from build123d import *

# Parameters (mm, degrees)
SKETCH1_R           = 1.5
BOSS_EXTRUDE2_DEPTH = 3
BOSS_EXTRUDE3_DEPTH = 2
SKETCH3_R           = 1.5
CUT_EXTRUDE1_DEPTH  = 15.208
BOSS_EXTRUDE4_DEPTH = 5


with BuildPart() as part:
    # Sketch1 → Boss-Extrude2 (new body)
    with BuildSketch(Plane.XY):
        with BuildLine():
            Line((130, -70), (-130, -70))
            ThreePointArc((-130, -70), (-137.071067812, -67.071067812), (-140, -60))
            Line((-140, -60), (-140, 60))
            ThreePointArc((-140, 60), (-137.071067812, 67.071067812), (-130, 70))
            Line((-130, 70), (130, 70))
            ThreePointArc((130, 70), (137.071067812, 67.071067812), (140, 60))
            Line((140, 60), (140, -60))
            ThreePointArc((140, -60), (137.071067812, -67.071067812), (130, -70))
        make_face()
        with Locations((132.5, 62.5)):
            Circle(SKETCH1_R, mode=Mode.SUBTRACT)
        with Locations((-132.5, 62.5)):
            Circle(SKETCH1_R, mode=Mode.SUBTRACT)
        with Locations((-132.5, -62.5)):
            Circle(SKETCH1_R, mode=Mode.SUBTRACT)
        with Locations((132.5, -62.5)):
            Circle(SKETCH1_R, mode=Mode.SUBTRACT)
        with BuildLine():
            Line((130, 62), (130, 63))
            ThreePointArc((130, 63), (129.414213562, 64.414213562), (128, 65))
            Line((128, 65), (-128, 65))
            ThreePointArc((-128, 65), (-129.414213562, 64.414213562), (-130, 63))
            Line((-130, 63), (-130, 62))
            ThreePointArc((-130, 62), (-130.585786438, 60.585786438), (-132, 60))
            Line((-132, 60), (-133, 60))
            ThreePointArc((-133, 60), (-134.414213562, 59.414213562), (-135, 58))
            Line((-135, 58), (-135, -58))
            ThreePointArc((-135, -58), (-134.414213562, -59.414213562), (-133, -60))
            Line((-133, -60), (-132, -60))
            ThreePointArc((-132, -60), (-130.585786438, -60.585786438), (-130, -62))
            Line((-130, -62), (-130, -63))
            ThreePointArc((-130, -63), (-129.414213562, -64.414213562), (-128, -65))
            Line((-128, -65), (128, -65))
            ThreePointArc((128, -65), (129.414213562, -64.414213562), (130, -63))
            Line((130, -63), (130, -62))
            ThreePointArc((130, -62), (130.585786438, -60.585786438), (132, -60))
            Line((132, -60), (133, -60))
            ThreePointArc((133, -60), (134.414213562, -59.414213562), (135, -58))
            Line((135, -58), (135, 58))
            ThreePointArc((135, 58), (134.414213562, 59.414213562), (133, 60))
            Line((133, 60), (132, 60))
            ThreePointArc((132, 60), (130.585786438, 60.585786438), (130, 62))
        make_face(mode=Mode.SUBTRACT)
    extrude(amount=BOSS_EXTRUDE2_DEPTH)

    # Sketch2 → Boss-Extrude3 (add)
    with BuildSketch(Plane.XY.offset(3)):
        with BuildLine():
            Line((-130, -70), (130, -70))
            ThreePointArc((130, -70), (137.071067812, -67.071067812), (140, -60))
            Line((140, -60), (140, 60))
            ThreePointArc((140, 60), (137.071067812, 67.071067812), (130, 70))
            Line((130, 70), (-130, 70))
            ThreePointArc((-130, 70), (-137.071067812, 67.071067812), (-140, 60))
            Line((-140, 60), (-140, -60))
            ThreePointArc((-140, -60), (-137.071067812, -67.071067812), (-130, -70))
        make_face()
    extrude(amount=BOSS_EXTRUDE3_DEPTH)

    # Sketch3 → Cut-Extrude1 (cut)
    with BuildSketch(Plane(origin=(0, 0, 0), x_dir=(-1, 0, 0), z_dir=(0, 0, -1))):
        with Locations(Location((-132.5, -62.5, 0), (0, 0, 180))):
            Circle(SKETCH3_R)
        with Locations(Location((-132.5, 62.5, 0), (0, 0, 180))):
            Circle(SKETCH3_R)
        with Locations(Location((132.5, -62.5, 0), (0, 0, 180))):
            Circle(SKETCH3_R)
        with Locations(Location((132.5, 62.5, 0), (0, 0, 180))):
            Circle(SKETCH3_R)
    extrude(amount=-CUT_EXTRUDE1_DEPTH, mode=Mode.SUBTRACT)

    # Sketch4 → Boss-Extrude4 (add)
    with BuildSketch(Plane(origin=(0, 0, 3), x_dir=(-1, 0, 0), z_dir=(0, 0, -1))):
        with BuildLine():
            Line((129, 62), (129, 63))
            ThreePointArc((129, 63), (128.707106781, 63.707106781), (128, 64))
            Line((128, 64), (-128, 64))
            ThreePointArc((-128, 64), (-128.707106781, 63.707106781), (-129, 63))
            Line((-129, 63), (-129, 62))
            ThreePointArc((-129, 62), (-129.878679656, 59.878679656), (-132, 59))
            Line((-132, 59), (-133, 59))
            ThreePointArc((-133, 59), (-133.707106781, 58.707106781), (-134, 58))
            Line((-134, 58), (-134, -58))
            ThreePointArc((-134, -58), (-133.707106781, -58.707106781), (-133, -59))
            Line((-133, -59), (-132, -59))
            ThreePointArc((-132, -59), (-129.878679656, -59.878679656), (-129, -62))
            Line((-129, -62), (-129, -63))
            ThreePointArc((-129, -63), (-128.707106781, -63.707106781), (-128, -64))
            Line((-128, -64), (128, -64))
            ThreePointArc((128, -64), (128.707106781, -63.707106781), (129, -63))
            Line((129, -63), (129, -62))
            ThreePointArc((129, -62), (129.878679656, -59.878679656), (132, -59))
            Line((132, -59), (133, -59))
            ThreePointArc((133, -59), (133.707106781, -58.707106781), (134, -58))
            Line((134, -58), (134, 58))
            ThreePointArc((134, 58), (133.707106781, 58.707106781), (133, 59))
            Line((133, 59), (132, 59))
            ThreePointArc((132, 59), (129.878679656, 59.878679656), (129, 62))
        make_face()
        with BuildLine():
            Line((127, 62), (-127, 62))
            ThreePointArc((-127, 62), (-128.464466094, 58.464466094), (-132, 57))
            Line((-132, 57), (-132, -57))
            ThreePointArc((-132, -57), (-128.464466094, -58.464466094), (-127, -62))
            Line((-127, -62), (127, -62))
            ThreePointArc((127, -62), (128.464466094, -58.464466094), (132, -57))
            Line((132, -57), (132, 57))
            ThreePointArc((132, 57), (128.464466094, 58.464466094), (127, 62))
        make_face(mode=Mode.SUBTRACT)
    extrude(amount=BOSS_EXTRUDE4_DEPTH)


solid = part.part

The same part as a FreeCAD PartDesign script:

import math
import FreeCAD as App
import Part
import Sketcher
from FreeCAD import Vector

doc = App.newDocument("Part")
body = doc.addObject("PartDesign::Body", "Body")

sketch1 = body.newObject("Sketcher::SketchObject", "Sketch")
sketch1.AttachmentSupport = (doc.getObject("XY_Plane"), [""])
sketch1.MapMode = "FlatFace"
sketch1.addGeometry([
    Part.LineSegment(Vector(-130, -70, 0), Vector(130, -70, 0)),
    Part.ArcOfCircle(Part.Circle(Vector(130, -60, 0), Vector(0, 0, 1), 10), math.radians(-90), math.radians(0)),
    Part.LineSegment(Vector(140, -60, 0), Vector(140, 60, 0)),
    Part.ArcOfCircle(Part.Circle(Vector(130, 60, 0), Vector(0, 0, 1), 10), math.radians(0), math.radians(90)),
    Part.LineSegment(Vector(130, 70, 0), Vector(-130, 70, 0)),
    Part.ArcOfCircle(Part.Circle(Vector(-130, 60, 0), Vector(0, 0, 1), 10), math.radians(90), math.radians(180)),
    Part.LineSegment(Vector(-140, 60, 0), Vector(-140, -60, 0)),
    Part.ArcOfCircle(Part.Circle(Vector(-130, -60, 0), Vector(0, 0, 1), 10), math.radians(180), math.radians(270)),
    Part.Circle(Vector(132.5, -62.5, 0), Vector(0, 0, 1), 1.5),
    Part.Circle(Vector(-132.5, -62.5, 0), Vector(0, 0, 1), 1.5),
    Part.Circle(Vector(132.5, 62.5, 0), Vector(0, 0, 1), 1.5),
    Part.ArcOfCircle(Part.Circle(Vector(132, 62, 0), Vector(0, 0, 1), 2), math.radians(-180), math.radians(-90)),
    Part.LineSegment(Vector(132, 60, 0), Vector(133, 60, 0)),
    Part.ArcOfCircle(Part.Circle(Vector(133, 58, 0), Vector(0, 0, 1), 2), math.radians(0), math.radians(90)),
    Part.LineSegment(Vector(135, 58, 0), Vector(135, -58, 0)),
    Part.ArcOfCircle(Part.Circle(Vector(133, -58, 0), Vector(0, 0, 1), 2), math.radians(-90), math.radians(0)),
    Part.LineSegment(Vector(133, -60, 0), Vector(132, -60, 0)),
    Part.ArcOfCircle(Part.Circle(Vector(132, -62, 0), Vector(0, 0, 1), 2), math.radians(90), math.radians(180)),
    Part.LineSegment(Vector(130, -62, 0), Vector(130, -63, 0)),
    Part.ArcOfCircle(Part.Circle(Vector(128, -63, 0), Vector(0, 0, 1), 2), math.radians(-90), math.radians(0)),
    Part.LineSegment(Vector(128, -65, 0), Vector(-128, -65, 0)),
    Part.ArcOfCircle(Part.Circle(Vector(-128, -63, 0), Vector(0, 0, 1), 2), math.radians(-180), math.radians(-90)),
    Part.LineSegment(Vector(-130, -63, 0), Vector(-130, -62, 0)),
    Part.ArcOfCircle(Part.Circle(Vector(-132, -62, 0), Vector(0, 0, 1), 2), math.radians(0), math.radians(90)),
    Part.LineSegment(Vector(-132, -60, 0), Vector(-133, -60, 0)),
    Part.ArcOfCircle(Part.Circle(Vector(-133, -58, 0), Vector(0, 0, 1), 2), math.radians(-180), math.radians(-90)),
    Part.LineSegment(Vector(-135, -58, 0), Vector(-135, 58, 0)),
    Part.ArcOfCircle(Part.Circle(Vector(-133, 58, 0), Vector(0, 0, 1), 2), math.radians(90), math.radians(180)),
    Part.LineSegment(Vector(-133, 60, 0), Vector(-132, 60, 0)),
    Part.ArcOfCircle(Part.Circle(Vector(-132, 62, 0), Vector(0, 0, 1), 2), math.radians(-90), math.radians(0)),
    Part.LineSegment(Vector(-130, 62, 0), Vector(-130, 63, 0)),
    Part.ArcOfCircle(Part.Circle(Vector(-128, 63, 0), Vector(0, 0, 1), 2), math.radians(90), math.radians(180)),
    Part.LineSegment(Vector(-128, 65, 0), Vector(128, 65, 0)),
    Part.ArcOfCircle(Part.Circle(Vector(128, 63, 0), Vector(0, 0, 1), 2), math.radians(0), math.radians(90)),
    Part.LineSegment(Vector(130, 63, 0), Vector(130, 62, 0)),
    Part.Circle(Vector(-132.5, 62.5, 0), Vector(0, 0, 1), 1.5),
], False)
sketch1.addConstraint([
    Sketcher.Constraint("Tangent", 0, 2, 1, 1),
    Sketcher.Constraint("Tangent", 1, 2, 2, 1),
    Sketcher.Constraint("Tangent", 2, 2, 3, 1),
    Sketcher.Constraint("Tangent", 3, 2, 4, 1),
    Sketcher.Constraint("Tangent", 4, 2, 5, 1),
    Sketcher.Constraint("Tangent", 5, 2, 6, 1),
    Sketcher.Constraint("Tangent", 6, 2, 7, 1),
    Sketcher.Constraint("Tangent", 7, 2, 0, 1),
    Sketcher.Constraint("Tangent", 11, 2, 12, 1),
    Sketcher.Constraint("Tangent", 12, 2, 13, 2),
    Sketcher.Constraint("Tangent", 13, 1, 14, 1),
    Sketcher.Constraint("Tangent", 14, 2, 15, 2),
    Sketcher.Constraint("Tangent", 15, 1, 16, 1),
    Sketcher.Constraint("Tangent", 16, 2, 17, 1),
    Sketcher.Constraint("Tangent", 17, 2, 18, 1),
    Sketcher.Constraint("Tangent", 18, 2, 19, 2),
    Sketcher.Constraint("Tangent", 19, 1, 20, 1),
    Sketcher.Constraint("Tangent", 20, 2, 21, 2),
    Sketcher.Constraint("Tangent", 21, 1, 22, 1),
    Sketcher.Constraint("Tangent", 22, 2, 23, 1),
    Sketcher.Constraint("Tangent", 23, 2, 24, 1),
    Sketcher.Constraint("Tangent", 24, 2, 25, 2),
    Sketcher.Constraint("Tangent", 25, 1, 26, 1),
    Sketcher.Constraint("Tangent", 26, 2, 27, 2),
    Sketcher.Constraint("Tangent", 27, 1, 28, 1),
    Sketcher.Constraint("Tangent", 28, 2, 29, 1),
    Sketcher.Constraint("Tangent", 29, 2, 30, 1),
    Sketcher.Constraint("Tangent", 30, 2, 31, 2),
    Sketcher.Constraint("Tangent", 31, 1, 32, 1),
    Sketcher.Constraint("Tangent", 32, 2, 33, 2),
    Sketcher.Constraint("Tangent", 33, 1, 34, 1),
    Sketcher.Constraint("Tangent", 34, 2, 11, 1),
    Sketcher.Constraint("Horizontal", 0),
    Sketcher.Constraint("Vertical", 2),
    Sketcher.Constraint("Horizontal", 4),
    Sketcher.Constraint("Vertical", 6),
    Sketcher.Constraint("Horizontal", 12),
    Sketcher.Constraint("Vertical", 14),
    Sketcher.Constraint("Horizontal", 16),
    Sketcher.Constraint("Vertical", 18),
    Sketcher.Constraint("Horizontal", 20),
    Sketcher.Constraint("Vertical", 22),
    Sketcher.Constraint("Horizontal", 24),
    Sketcher.Constraint("Vertical", 26),
    Sketcher.Constraint("Horizontal", 28),
    Sketcher.Constraint("Vertical", 30),
    Sketcher.Constraint("Horizontal", 32),
    Sketcher.Constraint("Vertical", 34),
    Sketcher.Constraint("Equal", 1, 3),
    Sketcher.Constraint("Equal", 3, 5),
    Sketcher.Constraint("Equal", 5, 7),
    Sketcher.Constraint("Equal", 8, 9),
    Sketcher.Constraint("Equal", 9, 10),
    Sketcher.Constraint("Equal", 11, 13),
    Sketcher.Constraint("Equal", 13, 15),
    Sketcher.Constraint("Equal", 15, 17),
    Sketcher.Constraint("Equal", 17, 19),
    Sketcher.Constraint("Equal", 19, 21),
    Sketcher.Constraint("Equal", 21, 23),
    Sketcher.Constraint("Equal", 23, 25),
    Sketcher.Constraint("Equal", 25, 27),
    Sketcher.Constraint("Equal", 27, 29),
    Sketcher.Constraint("Equal", 29, 31),
    Sketcher.Constraint("Equal", 31, 33),
    Sketcher.Constraint("Equal", 10, 35),
    Sketcher.Constraint("Symmetric", 1, 3, 5, 3, -1, 1),
    Sketcher.Constraint("Symmetric", 9, 3, 10, 3, -1, 1),
    Sketcher.Constraint("Symmetric", 11, 3, 23, 3, -1, 1),
    Sketcher.Constraint("Symmetric", 15, 3, 27, 3, -1, 1),
    Sketcher.Constraint("Symmetric", 19, 3, 31, 3, -1, 1),
    Sketcher.Constraint("Symmetric", 8, 3, 35, 3, -1, 1),
    Sketcher.Constraint("Symmetric", 8, 3, 9, 3, -2),
    Sketcher.Constraint("Symmetric", 17, 3, 23, 3, -2),
    Sketcher.Constraint("Horizontal", 5, 2, 11, 2),
    Sketcher.Constraint("Vertical", 3, 2, 17, 2),
    Sketcher.Constraint("Equal", 28, 18),
    Sketcher.Constraint("Diameter", 8, 3.0),
    Sketcher.Constraint("Radius", 1, 10.0),
    Sketcher.Constraint("Radius", 11, 2.0),
    Sketcher.Constraint("DistanceX", 0, 1, 0, 2, 260.0),
    Sketcher.Constraint("DistanceX", 12, 1, 12, 2, 1.0),
    Sketcher.Constraint("DistanceY", 2, 1, 2, 2, 120.0),
    Sketcher.Constraint("DistanceX", 9, 3, 8, 3, 265.0),
    Sketcher.Constraint("DistanceY", 8, 3, 10, 3, 125.0),
])
pad1 = body.newObject("PartDesign::Pad", "Pad")
pad1.Profile = sketch1
pad1.Length = 3

sketch2 = body.newObject("Sketcher::SketchObject", "Sketch001")
sketch2.AttachmentSupport = (doc.getObject("XY_Plane"), [""])
sketch2.MapMode = "FlatFace"
sketch2.AttachmentOffset = App.Placement(Vector(0, 0, 3), App.Rotation())
sketch2.addGeometry([
    Part.LineSegment(Vector(-130, -70, 0), Vector(130, -70, 0)),
    Part.ArcOfCircle(Part.Circle(Vector(130, -60, 0), Vector(0, 0, 1), 10), math.radians(-90), math.radians(0)),
    Part.LineSegment(Vector(140, -60, 0), Vector(140, 60, 0)),
    Part.ArcOfCircle(Part.Circle(Vector(130, 60, 0), Vector(0, 0, 1), 10), math.radians(0), math.radians(90)),
    Part.LineSegment(Vector(130, 70, 0), Vector(-130, 70, 0)),
    Part.ArcOfCircle(Part.Circle(Vector(-130, 60, 0), Vector(0, 0, 1), 10), math.radians(90), math.radians(180)),
    Part.LineSegment(Vector(-140, 60, 0), Vector(-140, -60, 0)),
    Part.ArcOfCircle(Part.Circle(Vector(-130, -60, 0), Vector(0, 0, 1), 10), math.radians(180), math.radians(270)),
], False)
sketch2.addConstraint([
    Sketcher.Constraint("Tangent", 0, 2, 1, 1),
    Sketcher.Constraint("Tangent", 1, 2, 2, 1),
    Sketcher.Constraint("Tangent", 2, 2, 3, 1),
    Sketcher.Constraint("Tangent", 3, 2, 4, 1),
    Sketcher.Constraint("Tangent", 4, 2, 5, 1),
    Sketcher.Constraint("Tangent", 5, 2, 6, 1),
    Sketcher.Constraint("Tangent", 6, 2, 7, 1),
    Sketcher.Constraint("Tangent", 7, 2, 0, 1),
    Sketcher.Constraint("Horizontal", 0),
    Sketcher.Constraint("Vertical", 2),
    Sketcher.Constraint("Horizontal", 4),
    Sketcher.Constraint("Vertical", 6),
    Sketcher.Constraint("Equal", 1, 3),
    Sketcher.Constraint("Equal", 3, 5),
    Sketcher.Constraint("Equal", 5, 7),
    Sketcher.Constraint("Symmetric", 1, 3, 5, 3, -1, 1),
    Sketcher.Constraint("Radius", 1, 10.0),
    Sketcher.Constraint("DistanceX", 0, 1, 0, 2, 260.0),
    Sketcher.Constraint("DistanceY", 2, 1, 2, 2, 120.0),
])
pad2 = body.newObject("PartDesign::Pad", "Pad001")
pad2.Profile = sketch2
pad2.Length = 2

sketch3 = body.newObject("Sketcher::SketchObject", "Sketch002")
sketch3.AttachmentSupport = (doc.getObject("XY_Plane"), [""])
sketch3.MapMode = "FlatFace"
sketch3.addGeometry([
    Part.Circle(Vector(132.5, -62.5, 0), Vector(0, 0, 1), 1.5),
    Part.Circle(Vector(132.5, 62.5, 0), Vector(0, 0, 1), 1.5),
    Part.Circle(Vector(-132.5, -62.5, 0), Vector(0, 0, 1), 1.5),
    Part.Circle(Vector(-132.5, 62.5, 0), Vector(0, 0, 1), 1.5),
], False)
sketch3.addConstraint([
    Sketcher.Constraint("Equal", 0, 1),
    Sketcher.Constraint("Equal", 1, 2),
    Sketcher.Constraint("Equal", 2, 3),
    Sketcher.Constraint("Symmetric", 1, 3, 2, 3, -1, 1),
    Sketcher.Constraint("Symmetric", 0, 3, 3, 3, -1, 1),
    Sketcher.Constraint("Symmetric", 0, 3, 2, 3, -2),
    Sketcher.Constraint("Diameter", 0, 3.0),
    Sketcher.Constraint("DistanceY", 0, 3, 1, 3, 125.0),
    Sketcher.Constraint("DistanceX", 2, 3, 0, 3, 265.0),
])
pocket1 = body.newObject("PartDesign::Pocket", "Pocket")
pocket1.Profile = sketch3
pocket1.Length = 15.208
pocket1.Reversed = True

sketch4 = body.newObject("Sketcher::SketchObject", "Sketch003")
sketch4.AttachmentSupport = (doc.getObject("XY_Plane"), [""])
sketch4.MapMode = "FlatFace"
sketch4.AttachmentOffset = App.Placement(Vector(0, 0, 3), App.Rotation())
sketch4.addGeometry([
    Part.LineSegment(Vector(-129, 62, 0), Vector(-129, 63, 0)),
    Part.ArcOfCircle(Part.Circle(Vector(-128, 63, 0), Vector(0, 0, 1), 1), math.radians(90), math.radians(180)),
    Part.LineSegment(Vector(-128, 64, 0), Vector(128, 64, 0)),
    Part.ArcOfCircle(Part.Circle(Vector(128, 63, 0), Vector(0, 0, 1), 1), math.radians(0), math.radians(90)),
    Part.LineSegment(Vector(129, 63, 0), Vector(129, 62, 0)),
    Part.ArcOfCircle(Part.Circle(Vector(132, 62, 0), Vector(0, 0, 1), 3), math.radians(180), math.radians(270)),
    Part.LineSegment(Vector(132, 59, 0), Vector(133, 59, 0)),
    Part.ArcOfCircle(Part.Circle(Vector(133, 58, 0), Vector(0, 0, 1), 1), math.radians(0), math.radians(90)),
    Part.LineSegment(Vector(134, 58, 0), Vector(134, -58, 0)),
    Part.ArcOfCircle(Part.Circle(Vector(133, -58, 0), Vector(0, 0, 1), 1), math.radians(-90), math.radians(0)),
    Part.LineSegment(Vector(133, -59, 0), Vector(132, -59, 0)),
    Part.ArcOfCircle(Part.Circle(Vector(132, -62, 0), Vector(0, 0, 1), 3), math.radians(90), math.radians(180)),
    Part.LineSegment(Vector(129, -62, 0), Vector(129, -63, 0)),
    Part.ArcOfCircle(Part.Circle(Vector(128, -63, 0), Vector(0, 0, 1), 1), math.radians(-90), math.radians(0)),
    Part.LineSegment(Vector(128, -64, 0), Vector(-128, -64, 0)),
    Part.ArcOfCircle(Part.Circle(Vector(-128, -63, 0), Vector(0, 0, 1), 1), math.radians(-180), math.radians(-90)),
    Part.LineSegment(Vector(-129, -63, 0), Vector(-129, -62, 0)),
    Part.ArcOfCircle(Part.Circle(Vector(-132, -62, 0), Vector(0, 0, 1), 3), math.radians(0), math.radians(90)),
    Part.LineSegment(Vector(-132, -59, 0), Vector(-133, -59, 0)),
    Part.ArcOfCircle(Part.Circle(Vector(-133, -58, 0), Vector(0, 0, 1), 1), math.radians(-180), math.radians(-90)),
    Part.LineSegment(Vector(-134, -58, 0), Vector(-134, 58, 0)),
    Part.ArcOfCircle(Part.Circle(Vector(-133, 58, 0), Vector(0, 0, 1), 1), math.radians(90), math.radians(180)),
    Part.LineSegment(Vector(-133, 59, 0), Vector(-132, 59, 0)),
    Part.ArcOfCircle(Part.Circle(Vector(-132, 62, 0), Vector(0, 0, 1), 3), math.radians(-90), math.radians(0)),
    Part.LineSegment(Vector(127, 62, 0), Vector(-127, 62, 0)),
    Part.ArcOfCircle(Part.Circle(Vector(-132, 62, 0), Vector(0, 0, 1), 5), math.radians(-90), math.radians(0)),
    Part.LineSegment(Vector(-132, 57, 0), Vector(-132, -57, 0)),
    Part.ArcOfCircle(Part.Circle(Vector(-132, -62, 0), Vector(0, 0, 1), 5), math.radians(0), math.radians(90)),
    Part.LineSegment(Vector(-127, -62, 0), Vector(127, -62, 0)),
    Part.ArcOfCircle(Part.Circle(Vector(132, -62, 0), Vector(0, 0, 1), 5), math.radians(90), math.radians(180)),
    Part.LineSegment(Vector(132, -57, 0), Vector(132, 57, 0)),
    Part.ArcOfCircle(Part.Circle(Vector(132, 62, 0), Vector(0, 0, 1), 5), math.radians(180), math.radians(270)),
], False)
sketch4.addConstraint([
    Sketcher.Constraint("Tangent", 0, 2, 1, 2),
    Sketcher.Constraint("Tangent", 1, 1, 2, 1),
    Sketcher.Constraint("Tangent", 2, 2, 3, 2),
    Sketcher.Constraint("Tangent", 3, 1, 4, 1),
    Sketcher.Constraint("Tangent", 4, 2, 5, 1),
    Sketcher.Constraint("Tangent", 5, 2, 6, 1),
    Sketcher.Constraint("Tangent", 6, 2, 7, 2),
    Sketcher.Constraint("Tangent", 7, 1, 8, 1),
    Sketcher.Constraint("Tangent", 8, 2, 9, 2),
    Sketcher.Constraint("Tangent", 9, 1, 10, 1),
    Sketcher.Constraint("Tangent", 10, 2, 11, 1),
    Sketcher.Constraint("Tangent", 11, 2, 12, 1),
    Sketcher.Constraint("Tangent", 12, 2, 13, 2),
    Sketcher.Constraint("Tangent", 13, 1, 14, 1),
    Sketcher.Constraint("Tangent", 14, 2, 15, 2),
    Sketcher.Constraint("Tangent", 15, 1, 16, 1),
    Sketcher.Constraint("Tangent", 16, 2, 17, 1),
    Sketcher.Constraint("Tangent", 17, 2, 18, 1),
    Sketcher.Constraint("Tangent", 18, 2, 19, 2),
    Sketcher.Constraint("Tangent", 19, 1, 20, 1),
    Sketcher.Constraint("Tangent", 20, 2, 21, 2),
    Sketcher.Constraint("Tangent", 21, 1, 22, 1),
    Sketcher.Constraint("Tangent", 22, 2, 23, 1),
    Sketcher.Constraint("Tangent", 23, 2, 0, 1),
    Sketcher.Constraint("Coincident", 24, 2, 25, 2),
    Sketcher.Constraint("Coincident", 25, 1, 26, 1),
    Sketcher.Constraint("Coincident", 26, 2, 27, 2),
    Sketcher.Constraint("Coincident", 27, 1, 28, 1),
    Sketcher.Constraint("Coincident", 28, 2, 29, 2),
    Sketcher.Constraint("Coincident", 29, 1, 30, 1),
    Sketcher.Constraint("Coincident", 30, 2, 31, 2),
    Sketcher.Constraint("Coincident", 31, 1, 24, 1),
    Sketcher.Constraint("Vertical", 0),
    Sketcher.Constraint("Horizontal", 2),
    Sketcher.Constraint("Vertical", 4),
    Sketcher.Constraint("Horizontal", 6),
    Sketcher.Constraint("Vertical", 8),
    Sketcher.Constraint("Horizontal", 10),
    Sketcher.Constraint("Vertical", 12),
    Sketcher.Constraint("Horizontal", 14),
    Sketcher.Constraint("Vertical", 16),
    Sketcher.Constraint("Horizontal", 18),
    Sketcher.Constraint("Vertical", 20),
    Sketcher.Constraint("Horizontal", 22),
    Sketcher.Constraint("Horizontal", 24),
    Sketcher.Constraint("Vertical", 26),
    Sketcher.Constraint("Horizontal", 28),
    Sketcher.Constraint("Vertical", 30),
    Sketcher.Constraint("Coincident", 25, 3, 23, 3),
    Sketcher.Constraint("Coincident", 27, 3, 17, 3),
    Sketcher.Constraint("Coincident", 29, 3, 11, 3),
    Sketcher.Constraint("Coincident", 31, 3, 5, 3),
    Sketcher.Constraint("Equal", 1, 3),
    Sketcher.Constraint("Equal", 3, 7),
    Sketcher.Constraint("Equal", 7, 9),
    Sketcher.Constraint("Equal", 5, 11),
    Sketcher.Constraint("Equal", 9, 13),
    Sketcher.Constraint("Equal", 13, 15),
    Sketcher.Constraint("Equal", 11, 17),
    Sketcher.Constraint("Equal", 15, 19),
    Sketcher.Constraint("Equal", 19, 21),
    Sketcher.Constraint("Equal", 17, 23),
    Sketcher.Constraint("Equal", 25, 27),
    Sketcher.Constraint("Equal", 27, 29),
    Sketcher.Constraint("Equal", 29, 31),
    Sketcher.Constraint("Symmetric", 1, 3, 13, 3, -1, 1),
    Sketcher.Constraint("Symmetric", 5, 3, 17, 3, -1, 1),
    Sketcher.Constraint("Symmetric", 9, 3, 21, 3, -1, 1),
    Sketcher.Constraint("Symmetric", 11, 3, 17, 3, -2),
    Sketcher.Constraint("Horizontal", 23, 2, 24, 2),
    Sketcher.Constraint("Horizontal", 16, 2, 27, 1),
    Sketcher.Constraint("Vertical", 22, 2, 25, 1),
    Sketcher.Constraint("Vertical", 10, 2, 29, 1),
    Sketcher.Constraint("Equal", 22, 0),
    Sketcher.Constraint("Radius", 1, 1.0),
    Sketcher.Constraint("Radius", 5, 3.0),
    Sketcher.Constraint("Radius", 25, 5.0),
    Sketcher.Constraint("DistanceX", 2, 1, 2, 2, 256.0),
    Sketcher.Constraint("DistanceX", 6, 1, 6, 2, 1.0),
    Sketcher.Constraint("DistanceY", 8, 2, 8, 1, 116.0),
])
pad3 = body.newObject("PartDesign::Pad", "Pad002")
pad3.Profile = sketch4
pad3.Length = 5
pad3.Reversed = True

doc.recompute()
